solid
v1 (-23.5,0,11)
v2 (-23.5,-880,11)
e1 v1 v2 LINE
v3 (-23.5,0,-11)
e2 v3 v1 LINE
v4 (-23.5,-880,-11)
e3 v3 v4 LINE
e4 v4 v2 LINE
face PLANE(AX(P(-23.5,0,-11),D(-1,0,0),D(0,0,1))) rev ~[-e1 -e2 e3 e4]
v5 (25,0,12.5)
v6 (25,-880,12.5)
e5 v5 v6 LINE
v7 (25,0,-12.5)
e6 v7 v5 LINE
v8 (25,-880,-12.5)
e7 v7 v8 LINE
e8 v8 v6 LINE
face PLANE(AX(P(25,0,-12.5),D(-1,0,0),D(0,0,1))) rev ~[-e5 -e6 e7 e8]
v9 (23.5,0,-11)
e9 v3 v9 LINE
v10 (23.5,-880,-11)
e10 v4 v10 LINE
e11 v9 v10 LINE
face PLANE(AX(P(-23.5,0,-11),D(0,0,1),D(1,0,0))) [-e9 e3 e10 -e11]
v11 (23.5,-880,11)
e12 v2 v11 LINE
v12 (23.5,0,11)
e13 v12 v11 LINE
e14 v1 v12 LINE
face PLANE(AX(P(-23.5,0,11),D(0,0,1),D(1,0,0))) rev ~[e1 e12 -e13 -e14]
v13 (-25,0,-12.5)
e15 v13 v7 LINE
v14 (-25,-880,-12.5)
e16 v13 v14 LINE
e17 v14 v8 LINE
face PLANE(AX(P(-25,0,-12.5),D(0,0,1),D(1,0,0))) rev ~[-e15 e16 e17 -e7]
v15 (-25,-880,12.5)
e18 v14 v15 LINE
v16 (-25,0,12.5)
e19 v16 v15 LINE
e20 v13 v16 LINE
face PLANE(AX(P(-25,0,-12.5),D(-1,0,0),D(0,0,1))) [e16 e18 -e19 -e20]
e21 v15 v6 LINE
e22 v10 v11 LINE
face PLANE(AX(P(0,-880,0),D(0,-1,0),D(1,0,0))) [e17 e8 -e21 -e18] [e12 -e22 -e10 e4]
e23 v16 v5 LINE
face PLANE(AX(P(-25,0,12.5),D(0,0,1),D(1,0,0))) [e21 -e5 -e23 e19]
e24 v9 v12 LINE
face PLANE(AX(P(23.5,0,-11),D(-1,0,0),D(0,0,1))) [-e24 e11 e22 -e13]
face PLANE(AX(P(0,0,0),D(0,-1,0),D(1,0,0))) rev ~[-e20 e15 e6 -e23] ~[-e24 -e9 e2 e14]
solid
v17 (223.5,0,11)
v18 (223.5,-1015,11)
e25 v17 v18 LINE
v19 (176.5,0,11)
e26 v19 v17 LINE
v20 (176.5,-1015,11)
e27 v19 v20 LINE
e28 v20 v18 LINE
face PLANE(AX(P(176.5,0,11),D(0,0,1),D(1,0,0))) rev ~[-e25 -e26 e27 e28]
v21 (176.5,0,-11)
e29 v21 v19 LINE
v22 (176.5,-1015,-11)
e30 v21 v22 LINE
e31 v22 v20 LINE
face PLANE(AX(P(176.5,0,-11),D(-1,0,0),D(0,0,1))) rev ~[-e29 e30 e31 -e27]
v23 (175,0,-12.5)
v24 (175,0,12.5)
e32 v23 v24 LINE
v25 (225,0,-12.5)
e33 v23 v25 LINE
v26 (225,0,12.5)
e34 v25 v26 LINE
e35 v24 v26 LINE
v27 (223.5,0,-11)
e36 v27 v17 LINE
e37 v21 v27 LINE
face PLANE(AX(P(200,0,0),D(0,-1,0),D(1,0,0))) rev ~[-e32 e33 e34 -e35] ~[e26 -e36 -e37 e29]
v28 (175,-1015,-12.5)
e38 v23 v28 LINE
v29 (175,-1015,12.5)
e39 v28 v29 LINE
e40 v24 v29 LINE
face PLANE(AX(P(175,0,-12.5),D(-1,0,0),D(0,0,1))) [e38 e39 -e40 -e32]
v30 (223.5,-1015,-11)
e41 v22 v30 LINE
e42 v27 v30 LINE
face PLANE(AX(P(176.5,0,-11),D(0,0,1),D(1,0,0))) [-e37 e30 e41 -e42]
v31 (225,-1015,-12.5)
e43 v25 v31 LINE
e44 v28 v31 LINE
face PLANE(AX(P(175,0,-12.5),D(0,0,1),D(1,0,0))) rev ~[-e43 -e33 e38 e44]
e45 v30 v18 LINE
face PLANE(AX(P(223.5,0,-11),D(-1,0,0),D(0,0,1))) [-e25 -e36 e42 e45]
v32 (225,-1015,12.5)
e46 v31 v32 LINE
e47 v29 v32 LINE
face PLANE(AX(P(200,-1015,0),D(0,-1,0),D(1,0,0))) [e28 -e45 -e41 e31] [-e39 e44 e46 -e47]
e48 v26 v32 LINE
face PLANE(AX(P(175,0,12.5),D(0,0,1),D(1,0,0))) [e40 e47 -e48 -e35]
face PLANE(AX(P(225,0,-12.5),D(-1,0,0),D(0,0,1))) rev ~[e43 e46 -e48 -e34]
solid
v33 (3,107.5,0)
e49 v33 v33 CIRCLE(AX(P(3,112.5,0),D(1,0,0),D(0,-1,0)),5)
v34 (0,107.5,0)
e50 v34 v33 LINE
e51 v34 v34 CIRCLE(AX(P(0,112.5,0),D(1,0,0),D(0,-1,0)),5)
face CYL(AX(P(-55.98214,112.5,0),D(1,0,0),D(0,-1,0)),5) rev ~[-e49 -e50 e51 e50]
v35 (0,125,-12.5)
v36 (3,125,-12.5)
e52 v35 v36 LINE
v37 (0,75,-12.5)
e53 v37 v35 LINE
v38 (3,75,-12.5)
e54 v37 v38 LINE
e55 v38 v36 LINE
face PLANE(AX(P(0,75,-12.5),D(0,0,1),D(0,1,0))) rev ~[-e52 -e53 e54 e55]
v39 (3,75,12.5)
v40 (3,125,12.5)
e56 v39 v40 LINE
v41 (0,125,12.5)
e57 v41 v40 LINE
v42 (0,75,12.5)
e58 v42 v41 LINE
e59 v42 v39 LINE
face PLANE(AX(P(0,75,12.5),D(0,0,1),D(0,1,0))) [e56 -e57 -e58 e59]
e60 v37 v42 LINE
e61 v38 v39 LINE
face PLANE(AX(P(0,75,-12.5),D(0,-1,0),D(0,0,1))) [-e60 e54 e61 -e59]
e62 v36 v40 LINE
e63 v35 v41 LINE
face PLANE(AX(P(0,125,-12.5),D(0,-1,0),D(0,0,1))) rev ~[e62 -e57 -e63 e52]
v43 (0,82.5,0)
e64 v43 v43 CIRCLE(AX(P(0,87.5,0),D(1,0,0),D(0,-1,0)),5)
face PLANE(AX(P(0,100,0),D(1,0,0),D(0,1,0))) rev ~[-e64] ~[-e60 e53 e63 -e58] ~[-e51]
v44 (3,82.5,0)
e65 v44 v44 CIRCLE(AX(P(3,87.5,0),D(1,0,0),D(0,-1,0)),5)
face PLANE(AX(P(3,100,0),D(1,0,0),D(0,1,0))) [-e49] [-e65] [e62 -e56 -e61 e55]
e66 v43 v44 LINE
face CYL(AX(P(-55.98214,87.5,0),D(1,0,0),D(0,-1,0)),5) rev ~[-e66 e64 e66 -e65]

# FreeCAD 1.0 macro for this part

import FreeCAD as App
import Part
import Sketcher
from FreeCAD import Vector
Q = App.Units.Quantity

doc = App.newDocument("Part")
body = doc.addObject("PartDesign::Body", "Body")

sketch1 = body.newObject("Sketcher::SketchObject", "Sketch")
sketch1.AttachmentSupport = (doc.getObject("XZ_Plane"), [""])
sketch1.MapMode = "FlatFace"
sketch1.addGeometry([
    Part.LineSegment(Vector(-25, 12, 0), Vector(-25, -12, 0)),
    Part.LineSegment(Vector(-25, -12, 0), Vector(25, -12, 0)),
    Part.LineSegment(Vector(25, -12, 0), Vector(25, 12, 0)),
    Part.LineSegment(Vector(25, 12, 0), Vector(-25, 12, 0)),
    Part.LineSegment(Vector(24, -11, 0), Vector(-24, -11, 0)),
    Part.LineSegment(Vector(-24, -11, 0), Vector(-24, 11, 0)),
    Part.LineSegment(Vector(-24, 11, 0), Vector(24, 11, 0)),
    Part.LineSegment(Vector(24, 11, 0), Vector(24, -11, 0)),
], False)
sketch1.addConstraint([
    Sketcher.Constraint("Coincident", 0, 2, 1, 1),
    Sketcher.Constraint("Coincident", 1, 2, 2, 1),
    Sketcher.Constraint("Coincident", 2, 2, 3, 1),
    Sketcher.Constraint("Coincident", 3, 2, 0, 1),
    Sketcher.Constraint("Coincident", 4, 2, 5, 1),
    Sketcher.Constraint("Coincident", 5, 2, 6, 1),
    Sketcher.Constraint("Coincident", 6, 2, 7, 1),
    Sketcher.Constraint("Coincident", 7, 2, 4, 1),
    Sketcher.Constraint("Vertical", 0),
    Sketcher.Constraint("Horizontal", 1),
    Sketcher.Constraint("Vertical", 2),
    Sketcher.Constraint("Horizontal", 3),
    Sketcher.Constraint("Horizontal", 4),
    Sketcher.Constraint("Vertical", 5),
    Sketcher.Constraint("Horizontal", 6),
    Sketcher.Constraint("Vertical", 7),
    Sketcher.Constraint("Symmetric", 0, 2, 2, 2, -1, 1),
    Sketcher.Constraint("Symmetric", 4, 2, 6, 2, -1, 1),
    Sketcher.Constraint("DistanceX", 1, 1, 1, 2, Q("50 mm")),
    Sketcher.Constraint("DistanceX", 4, 2, 4, 1, Q("47 mm")),
    Sketcher.Constraint("DistanceY", 0, 2, 0, 1, Q("25 mm")),
    Sketcher.Constraint("DistanceY", 5, 1, 5, 2, Q("22 mm")),
])
pad1 = body.newObject("PartDesign::Pad", "Pad")
pad1.Profile = sketch1
pad1.Length = 880
body2 = doc.addObject("PartDesign::Body", "Body001")

sketch2 = body2.newObject("Sketcher::SketchObject", "Sketch001")
sketch2.AttachmentSupport = (doc.getObject("YZ_Plane001"), [""])
sketch2.MapMode = "FlatFace"
sketch2.addGeometry([
    Part.LineSegment(Vector(75, 12, 0), Vector(75, -12, 0)),
    Part.LineSegment(Vector(75, -12, 0), Vector(125, -12, 0)),
    Part.LineSegment(Vector(125, -12, 0), Vector(125, 12, 0)),
    Part.LineSegment(Vector(125, 12, 0), Vector(75, 12, 0)),
], False)
sketch2.addConstraint([
    Sketcher.Constraint("Coincident", 0, 2, 1, 1),
    Sketcher.Constraint("Coincident", 1, 2, 2, 1),
    Sketcher.Constraint("Coincident", 2, 2, 3, 1),
    Sketcher.Constraint("Coincident", 3, 2, 0, 1),
    Sketcher.Constraint("Vertical", 0),
    Sketcher.Constraint("Horizontal", 1),
    Sketcher.Constraint("Vertical", 2),
    Sketcher.Constraint("Horizontal", 3),
    Sketcher.Constraint("DistanceX", 1, 1, 1, 2, Q("50 mm")),
    Sketcher.Constraint("DistanceY", 0, 2, 0, 1, Q("25 mm")),
    Sketcher.Constraint("DistanceX", -1, 1, 0, 2, Q("75 mm")),
    Sketcher.Constraint("DistanceY", 0, 2, -1, 1, Q("12.5 mm")),
])
pad2 = body2.newObject("PartDesign::Pad", "Pad001")
pad2.Profile = sketch2
pad2.Length = 3

sketch3 = body2.newObject("Sketcher::SketchObject", "Sketch002")
sketch3.AttachmentSupport = (doc.getObject("YZ_Plane001"), [""])
sketch3.MapMode = "FlatFace"
sketch3.addGeometry([
    Part.Circle(Vector(88, 0, 0), Vector(0, 0, 1), 5),
    Part.Circle(Vector(112, 0, 0), Vector(0, 0, 1), 5),
], False)
sketch3.addConstraint([
    Sketcher.Constraint("Equal", 0, 1),
    Sketcher.Constraint("PointOnObject", 0, 3, -1),
    Sketcher.Constraint("PointOnObject", 1, 3, -1),
    Sketcher.Constraint("Diameter", 0, Q("10 mm")),
    Sketcher.Constraint("DistanceX", 0, 3, 1, 3, Q("25 mm")),
    Sketcher.Constraint("DistanceX", -1, 1, 0, 3, Q("87.5 mm")),
])
doc.recompute()
hole = body2.newObject("PartDesign::Hole", "Hole")
hole.Profile = sketch3
hole.ThreadType = "None"
hole.Diameter = 10
hole.DepthType = "ThroughAll"
hole.Reversed = True
body3 = doc.addObject("PartDesign::Body", "Body002")

sketch4 = body3.newObject("Sketcher::SketchObject", "Sketch003")
sketch4.AttachmentSupport = (doc.getObject("XZ_Plane002"), [""])
sketch4.MapMode = "FlatFace"
sketch4.addGeometry([
    Part.LineSegment(Vector(175, 12, 0), Vector(175, -12, 0)),
    Part.LineSegment(Vector(175, -12, 0), Vector(225, -12, 0)),
    Part.LineSegment(Vector(225, -12, 0), Vector(225, 12, 0)),
    Part.LineSegment(Vector(225, 12, 0), Vector(175, 12, 0)),
    Part.LineSegment(Vector(224, -11, 0), Vector(176, -11, 0)),
    Part.LineSegment(Vector(176, -11, 0), Vector(176, 11, 0)),
    Part.LineSegment(Vector(176, 11, 0), Vector(224, 11, 0)),
    Part.LineSegment(Vector(224, 11, 0), Vector(224, -11, 0)),
], False)
sketch4.addConstraint([
    Sketcher.Constraint("Coincident", 0, 2, 1, 1),
    Sketcher.Constraint("Coincident", 1, 2, 2, 1),
    Sketcher.Constraint("Coincident", 2, 2, 3, 1),
    Sketcher.Constraint("Coincident", 3, 2, 0, 1),
    Sketcher.Constraint("Coincident", 4, 2, 5, 1),
    Sketcher.Constraint("Coincident", 5, 2, 6, 1),
    Sketcher.Constraint("Coincident", 6, 2, 7, 1),
    Sketcher.Constraint("Coincident", 7, 2, 4, 1),
    Sketcher.Constraint("Vertical", 0),
    Sketcher.Constraint("Horizontal", 1),
    Sketcher.Constraint("Vertical", 2),
    Sketcher.Constraint("Horizontal", 3),
    Sketcher.Constraint("Horizontal", 4),
    Sketcher.Constraint("Vertical", 5),
    Sketcher.Constraint("Horizontal", 6),
    Sketcher.Constraint("Vertical", 7),
    Sketcher.Constraint("DistanceX", 1, 1, 1, 2, Q("50 mm")),
    Sketcher.Constraint("DistanceX", 4, 2, 4, 1, Q("47 mm")),
    Sketcher.Constraint("DistanceY", 0, 2, 0, 1, Q("25 mm")),
    Sketcher.Constraint("DistanceY", 5, 1, 5, 2, Q("22 mm")),
    Sketcher.Constraint("DistanceX", -1, 1, 0, 2, Q("175 mm")),
    Sketcher.Constraint("DistanceY", 4, 2, -1, 1, Q("11 mm")),
    Sketcher.Constraint("DistanceY", 0, 2, -1, 1, Q("12.5 mm")),
    Sketcher.Constraint("DistanceX", -1, 1, 4, 2, Q("176.5 mm")),
])
pad3 = body3.newObject("PartDesign::Pad", "Pad002")
pad3.Profile = sketch4
pad3.Length = 1015

doc.recompute()
